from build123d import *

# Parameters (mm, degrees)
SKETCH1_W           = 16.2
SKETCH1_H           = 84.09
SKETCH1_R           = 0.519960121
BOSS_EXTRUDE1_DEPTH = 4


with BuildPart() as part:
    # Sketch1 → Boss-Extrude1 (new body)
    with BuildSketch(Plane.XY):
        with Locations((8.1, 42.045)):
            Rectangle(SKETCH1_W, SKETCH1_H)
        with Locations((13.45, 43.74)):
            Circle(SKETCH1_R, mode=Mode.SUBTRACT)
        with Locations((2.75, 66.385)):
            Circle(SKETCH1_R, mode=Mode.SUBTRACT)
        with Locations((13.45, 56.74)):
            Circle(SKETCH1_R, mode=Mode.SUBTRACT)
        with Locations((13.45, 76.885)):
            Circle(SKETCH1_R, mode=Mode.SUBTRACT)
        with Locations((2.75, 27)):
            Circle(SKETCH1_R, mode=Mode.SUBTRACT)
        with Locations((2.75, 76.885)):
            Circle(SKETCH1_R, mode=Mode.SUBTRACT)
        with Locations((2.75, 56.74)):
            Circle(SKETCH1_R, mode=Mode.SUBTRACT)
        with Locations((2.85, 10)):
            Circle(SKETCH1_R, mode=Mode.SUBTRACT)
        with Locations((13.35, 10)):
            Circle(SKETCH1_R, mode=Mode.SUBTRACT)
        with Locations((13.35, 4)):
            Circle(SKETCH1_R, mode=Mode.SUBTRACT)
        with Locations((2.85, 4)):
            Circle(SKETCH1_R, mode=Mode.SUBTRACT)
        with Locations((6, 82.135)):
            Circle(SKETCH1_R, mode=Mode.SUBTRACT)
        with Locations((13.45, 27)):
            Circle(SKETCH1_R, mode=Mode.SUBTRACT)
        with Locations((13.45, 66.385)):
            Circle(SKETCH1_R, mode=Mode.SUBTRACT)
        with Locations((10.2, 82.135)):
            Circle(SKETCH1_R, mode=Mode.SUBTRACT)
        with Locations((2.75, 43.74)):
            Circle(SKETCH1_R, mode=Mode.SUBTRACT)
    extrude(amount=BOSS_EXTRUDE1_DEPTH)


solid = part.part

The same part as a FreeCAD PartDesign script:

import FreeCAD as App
import Part
import Sketcher
Q = App.Units.Quantity


def add_polygon(sketch, points):
    """Adds a closed chain of lines whose ends are joined by coincident constraints."""
    first, n = sketch.GeometryCount, len(points)
    for a, b in zip(points, points[1:] + points[:1]):
        sketch.addGeometry(Part.LineSegment(App.Vector(*a, 0), App.Vector(*b, 0)), False)
    for i in range(n):
        sketch.addConstraint(Sketcher.Constraint("Coincident", first + i, 2, first + (i + 1) % n, 1))

doc = App.newDocument("Part")
body = doc.addObject("PartDesign::Body", "Body")

sketch1 = body.newObject("Sketcher::SketchObject", "Sketch")
sketch1.AttachmentSupport = (doc.getObject("XY_Plane"), [""])
sketch1.MapMode = "FlatFace"
add_polygon(sketch1, [(0, 84.1), (0, 0), (16.2, 0), (16.2, 84.1)])
sketch1.addGeometry(Part.Circle(App.Vector(2.9, 4, 0), App.Vector(0, 0, 1), 0.5), False)
sketch1.addGeometry(Part.Circle(App.Vector(2.9, 10, 0), App.Vector(0, 0, 1), 0.5), False)
sketch1.addGeometry(Part.Circle(App.Vector(2.8, 27, 0), App.Vector(0, 0, 1), 0.5), False)
sketch1.addGeometry(Part.Circle(App.Vector(13.3, 4, 0), App.Vector(0, 0, 1), 0.5), False)
sketch1.addGeometry(Part.Circle(App.Vector(13.3, 10, 0), App.Vector(0, 0, 1), 0.5), False)
sketch1.addGeometry(Part.Circle(App.Vector(13.4, 27, 0), App.Vector(0, 0, 1), 0.5), False)
sketch1.addGeometry(Part.Circle(App.Vector(2.8, 43.7, 0), App.Vector(0, 0, 1), 0.5), False)
sketch1.addGeometry(Part.Circle(App.Vector(2.8, 56.7, 0), App.Vector(0, 0, 1), 0.5), False)
sketch1.addGeometry(Part.Circle(App.Vector(2.8, 66.4, 0), App.Vector(0, 0, 1), 0.5), False)
sketch1.addGeometry(Part.Circle(App.Vector(2.8, 76.9, 0), App.Vector(0, 0, 1), 0.5), False)
sketch1.addGeometry(Part.Circle(App.Vector(6, 82.1, 0), App.Vector(0, 0, 1), 0.5), False)
sketch1.addGeometry(Part.Circle(App.Vector(13.4, 43.7, 0), App.Vector(0, 0, 1), 0.5), False)
sketch1.addGeometry(Part.Circle(App.Vector(13.4, 56.7, 0), App.Vector(0, 0, 1), 0.5), False)
sketch1.addGeometry(Part.Circle(App.Vector(10.2, 82.1, 0), App.Vector(0, 0, 1), 0.5), False)
sketch1.addGeometry(Part.Circle(App.Vector(13.4, 66.4, 0), App.Vector(0, 0, 1), 0.5), False)
sketch1.addGeometry(Part.Circle(App.Vector(13.4, 76.9, 0), App.Vector(0, 0, 1), 0.5), False)
sketch1.addConstraint(Sketcher.Constraint("Vertical", 0))
sketch1.addConstraint(Sketcher.Constraint("Horizontal", 1))
sketch1.addConstraint(Sketcher.Constraint("Vertical", 2))
sketch1.addConstraint(Sketcher.Constraint("Horizontal", 3))
sketch1.addConstraint(Sketcher.Constraint("Coincident", 0, 2, -1, 1))
sketch1.addConstraint(Sketcher.Constraint("Equal", 4, 5))
sketch1.addConstraint(Sketcher.Constraint("Equal", 5, 6))
sketch1.addConstraint(Sketcher.Constraint("Equal", 6, 7))
sketch1.addConstraint(Sketcher.Constraint("Equal", 7, 8))
sketch1.addConstraint(Sketcher.Constraint("Equal", 8, 9))
sketch1.addConstraint(Sketcher.Constraint("Equal", 9, 10))
sketch1.addConstraint(Sketcher.Constraint("Equal", 10, 11))
sketch1.addConstraint(Sketcher.Constraint("Equal", 11, 12))
sketch1.addConstraint(Sketcher.Constraint("Equal", 12, 13))
sketch1.addConstraint(Sketcher.Constraint("Equal", 13, 14))
sketch1.addConstraint(Sketcher.Constraint("Equal", 14, 15))
sketch1.addConstraint(Sketcher.Constraint("Equal", 15, 16))
sketch1.addConstraint(Sketcher.Constraint("Equal", 16, 17))
sketch1.addConstraint(Sketcher.Constraint("Equal", 17, 18))
sketch1.addConstraint(Sketcher.Constraint("Equal", 18, 19))
sketch1.addConstraint(Sketcher.Constraint("Horizontal", 4, 3, 7, 3))
sketch1.addConstraint(Sketcher.Constraint("Horizontal", 5, 3, 8, 3))
sketch1.addConstraint(Sketcher.Constraint("Horizontal", 6, 3, 9, 3))
sketch1.addConstraint(Sketcher.Constraint("Horizontal", 10, 3, 15, 3))
sketch1.addConstraint(Sketcher.Constraint("Horizontal", 11, 3, 16, 3))
sketch1.addConstraint(Sketcher.Constraint("Horizontal", 14, 3, 17, 3))
sketch1.addConstraint(Sketcher.Constraint("Horizontal", 12, 3, 18, 3))
sketch1.addConstraint(Sketcher.Constraint("Horizontal", 13, 3, 19, 3))
sketch1.addConstraint(Sketcher.Constraint("Vertical", 4, 3, 5, 3))
sketch1.addConstraint(Sketcher.Constraint("Vertical", 7, 3, 8, 3))
sketch1.addConstraint(Sketcher.Constraint("Vertical", 6, 3, 10, 3))
sketch1.addConstraint(Sketcher.Constraint("Vertical", 10, 3, 11, 3))
sketch1.addConstraint(Sketcher.Constraint("Vertical", 11, 3, 12, 3))
sketch1.addConstraint(Sketcher.Constraint("Vertical", 12, 3, 13, 3))
sketch1.addConstraint(Sketcher.Constraint("Vertical", 9, 3, 15, 3))
sketch1.addConstraint(Sketcher.Constraint("Vertical", 15, 3, 16, 3))
sketch1.addConstraint(Sketcher.Constraint("Vertical", 16, 3, 18, 3))
sketch1.addConstraint(Sketcher.Constraint("Vertical", 18, 3, 19, 3))
sketch1.addConstraint(Sketcher.Constraint("DistanceX", 1, 1, 1, 2, Q("16.2 mm")))
sketch1.addConstraint(Sketcher.Constraint("DistanceY", -1, 1, 4, 3, Q("4 mm")))
sketch1.addConstraint(Sketcher.Constraint("DistanceY", -1, 1, 5, 3, Q("10 mm")))
sketch1.addConstraint(Sketcher.Constraint("DistanceY", -1, 1, 6, 3, Q("27 mm")))
sketch1.addConstraint(Sketcher.Constraint("DistanceX", -1, 1, 14, 3, Q("6 mm")))
sketch1.addConstraint(Sketcher.Constraint("DistanceY", 10, 3, 11, 3, Q("13 mm")))
sketch1.addConstraint(Sketcher.Constraint("DistanceX", 17, 3, 2, 2, Q("6 mm")))
sketch1.addConstraint(Sketcher.Constraint("DistanceY", 0, 2, 0, 1, Q("84.09 mm")))
sketch1.addConstraint(Sketcher.Constraint("DistanceX", 6, 3, 5, 3, Q("0.1 mm")))
sketch1.addConstraint(Sketcher.Constraint("DistanceX", 4, 3, 7, 3, Q("10.5 mm")))
sketch1.addConstraint(Sketcher.Constraint("DistanceX", 6, 3, 9, 3, Q("10.7 mm")))
sketch1.addConstraint(Sketcher.Constraint("DistanceY", 12, 3, 13, 3, Q("10.5 mm")))
sketch1.addConstraint(Sketcher.Constraint("Diameter", 4, Q("1.03992 mm")))
sketch1.addConstraint(Sketcher.Constraint("DistanceX", -1, 1, 4, 3, Q("2.85 mm")))
sketch1.addConstraint(Sketcher.Constraint("DistanceY", -1, 1, 10, 3, Q("43.74 mm")))
sketch1.addConstraint(Sketcher.Constraint("DistanceY", 13, 3, 14, 3, Q("5.25 mm")))
sketch1.addConstraint(Sketcher.Constraint("DistanceY", -1, 1, 12, 3, Q("66.385 mm")))
pad1 = body.newObject("PartDesign::Pad", "Pad")
pad1.Profile = sketch1
pad1.Length = 4

doc.recompute()
